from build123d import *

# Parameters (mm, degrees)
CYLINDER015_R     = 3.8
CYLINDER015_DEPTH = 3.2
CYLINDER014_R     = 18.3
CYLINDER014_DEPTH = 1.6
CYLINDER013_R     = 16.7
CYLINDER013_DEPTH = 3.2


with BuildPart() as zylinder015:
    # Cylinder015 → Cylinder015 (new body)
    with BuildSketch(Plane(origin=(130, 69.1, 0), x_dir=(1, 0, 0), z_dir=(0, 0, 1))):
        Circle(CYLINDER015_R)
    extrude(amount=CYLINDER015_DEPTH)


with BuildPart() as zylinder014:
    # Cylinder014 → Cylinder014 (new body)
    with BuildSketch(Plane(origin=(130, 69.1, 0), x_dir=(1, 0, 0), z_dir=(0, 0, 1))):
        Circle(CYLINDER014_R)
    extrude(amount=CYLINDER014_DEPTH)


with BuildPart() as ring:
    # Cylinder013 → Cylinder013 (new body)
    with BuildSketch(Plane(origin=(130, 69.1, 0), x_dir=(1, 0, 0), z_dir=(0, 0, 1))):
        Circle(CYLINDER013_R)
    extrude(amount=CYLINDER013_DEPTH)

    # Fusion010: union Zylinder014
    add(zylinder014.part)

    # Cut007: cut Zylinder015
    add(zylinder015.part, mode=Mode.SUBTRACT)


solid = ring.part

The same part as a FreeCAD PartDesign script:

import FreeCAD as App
import Part
import Sketcher

V = App.Vector
Q = App.Units.Quantity

doc = App.newDocument("Part")
params = doc.addObject("Spreadsheet::Sheet", "Params")
for row, (alias, value) in enumerate([
    ("sketch1_diameter", "7.6 mm"),
    ("pad1_length", "3.2 mm"),
    ("sketch2_diameter", "36.6 mm"),
    ("pad2_length", "1.6 mm"),
    ("sketch3_diameter", "33.4 mm"),
    ("pad3_length", "3.2 mm"),
], start=1):
    params.set(f"A{row}", alias)
    params.set(f"B{row}", "=" + value)
    params.setAlias(f"B{row}", alias)

body = doc.addObject("PartDesign::Body", "Body")

# Sketch on XY plane
sketch1 = body.newObject("Sketcher::SketchObject", "Sketch")
sketch1.AttachmentSupport = (doc.getObject("XY_Plane"), [""])
sketch1.MapMode = "FlatFace"
sketch1.addGeometry(Part.Circle(V(130, 69.1, 0), V(0, 0, 1), 3.8), False)
sketch1.addConstraint([
    Sketcher.Constraint("Diameter", 0, Q("7.6 mm")),
    Sketcher.Constraint("DistanceX", -1, 1, 0, 3, Q("130 mm")),
    Sketcher.Constraint("DistanceY", -1, 1, 0, 3, Q("69.1 mm")),
])
sketch1.setExpression("Constraints[0]", "Params.sketch1_diameter")
pad1 = body.newObject("PartDesign::Pad", "Pad")
pad1.Profile = sketch1
pad1.setExpression("Length", "Params.pad1_length")
body2 = doc.addObject("PartDesign::Body", "Body001")

# Sketch on XY plane
sketch2 = body2.newObject("Sketcher::SketchObject", "Sketch001")
sketch2.AttachmentSupport = (doc.getObject("XY_Plane001"), [""])
sketch2.MapMode = "FlatFace"
sketch2.addGeometry(Part.Circle(V(130, 69.1, 0), V(0, 0, 1), 18.3), False)
sketch2.addConstraint([
    Sketcher.Constraint("Diameter", 0, Q("36.6 mm")),
    Sketcher.Constraint("DistanceX", -1, 1, 0, 3, Q("130 mm")),
    Sketcher.Constraint("DistanceY", -1, 1, 0, 3, Q("69.1 mm")),
])
sketch2.setExpression("Constraints[0]", "Params.sketch2_diameter")
pad2 = body2.newObject("PartDesign::Pad", "Pad001")
pad2.Profile = sketch2
pad2.setExpression("Length", "Params.pad2_length")
body3 = doc.addObject("PartDesign::Body", "Body002")

# Sketch on XY plane
sketch3 = body3.newObject("Sketcher::SketchObject", "Sketch002")
sketch3.AttachmentSupport = (doc.getObject("XY_Plane002"), [""])
sketch3.MapMode = "FlatFace"
sketch3.addGeometry(Part.Circle(V(130, 69.1, 0), V(0, 0, 1), 16.7), False)
sketch3.addConstraint([
    Sketcher.Constraint("Diameter", 0, Q("33.4 mm")),
    Sketcher.Constraint("DistanceX", -1, 1, 0, 3, Q("130 mm")),
    Sketcher.Constraint("DistanceY", -1, 1, 0, 3, Q("69.1 mm")),
])
sketch3.setExpression("Constraints[0]", "Params.sketch3_diameter")
pad3 = body3.newObject("PartDesign::Pad", "Pad002")
pad3.Profile = sketch3
pad3.setExpression("Length", "Params.pad3_length")
doc.recompute()

boolean = body3.newObject("PartDesign::Boolean", "Boolean")
boolean.Type = "Fuse"
boolean.addObjects([body2])
doc.recompute()

boolean2 = body3.newObject("PartDesign::Boolean", "Boolean001")
boolean2.Type = "Cut"
boolean2.addObjects([body])

doc.recompute()
